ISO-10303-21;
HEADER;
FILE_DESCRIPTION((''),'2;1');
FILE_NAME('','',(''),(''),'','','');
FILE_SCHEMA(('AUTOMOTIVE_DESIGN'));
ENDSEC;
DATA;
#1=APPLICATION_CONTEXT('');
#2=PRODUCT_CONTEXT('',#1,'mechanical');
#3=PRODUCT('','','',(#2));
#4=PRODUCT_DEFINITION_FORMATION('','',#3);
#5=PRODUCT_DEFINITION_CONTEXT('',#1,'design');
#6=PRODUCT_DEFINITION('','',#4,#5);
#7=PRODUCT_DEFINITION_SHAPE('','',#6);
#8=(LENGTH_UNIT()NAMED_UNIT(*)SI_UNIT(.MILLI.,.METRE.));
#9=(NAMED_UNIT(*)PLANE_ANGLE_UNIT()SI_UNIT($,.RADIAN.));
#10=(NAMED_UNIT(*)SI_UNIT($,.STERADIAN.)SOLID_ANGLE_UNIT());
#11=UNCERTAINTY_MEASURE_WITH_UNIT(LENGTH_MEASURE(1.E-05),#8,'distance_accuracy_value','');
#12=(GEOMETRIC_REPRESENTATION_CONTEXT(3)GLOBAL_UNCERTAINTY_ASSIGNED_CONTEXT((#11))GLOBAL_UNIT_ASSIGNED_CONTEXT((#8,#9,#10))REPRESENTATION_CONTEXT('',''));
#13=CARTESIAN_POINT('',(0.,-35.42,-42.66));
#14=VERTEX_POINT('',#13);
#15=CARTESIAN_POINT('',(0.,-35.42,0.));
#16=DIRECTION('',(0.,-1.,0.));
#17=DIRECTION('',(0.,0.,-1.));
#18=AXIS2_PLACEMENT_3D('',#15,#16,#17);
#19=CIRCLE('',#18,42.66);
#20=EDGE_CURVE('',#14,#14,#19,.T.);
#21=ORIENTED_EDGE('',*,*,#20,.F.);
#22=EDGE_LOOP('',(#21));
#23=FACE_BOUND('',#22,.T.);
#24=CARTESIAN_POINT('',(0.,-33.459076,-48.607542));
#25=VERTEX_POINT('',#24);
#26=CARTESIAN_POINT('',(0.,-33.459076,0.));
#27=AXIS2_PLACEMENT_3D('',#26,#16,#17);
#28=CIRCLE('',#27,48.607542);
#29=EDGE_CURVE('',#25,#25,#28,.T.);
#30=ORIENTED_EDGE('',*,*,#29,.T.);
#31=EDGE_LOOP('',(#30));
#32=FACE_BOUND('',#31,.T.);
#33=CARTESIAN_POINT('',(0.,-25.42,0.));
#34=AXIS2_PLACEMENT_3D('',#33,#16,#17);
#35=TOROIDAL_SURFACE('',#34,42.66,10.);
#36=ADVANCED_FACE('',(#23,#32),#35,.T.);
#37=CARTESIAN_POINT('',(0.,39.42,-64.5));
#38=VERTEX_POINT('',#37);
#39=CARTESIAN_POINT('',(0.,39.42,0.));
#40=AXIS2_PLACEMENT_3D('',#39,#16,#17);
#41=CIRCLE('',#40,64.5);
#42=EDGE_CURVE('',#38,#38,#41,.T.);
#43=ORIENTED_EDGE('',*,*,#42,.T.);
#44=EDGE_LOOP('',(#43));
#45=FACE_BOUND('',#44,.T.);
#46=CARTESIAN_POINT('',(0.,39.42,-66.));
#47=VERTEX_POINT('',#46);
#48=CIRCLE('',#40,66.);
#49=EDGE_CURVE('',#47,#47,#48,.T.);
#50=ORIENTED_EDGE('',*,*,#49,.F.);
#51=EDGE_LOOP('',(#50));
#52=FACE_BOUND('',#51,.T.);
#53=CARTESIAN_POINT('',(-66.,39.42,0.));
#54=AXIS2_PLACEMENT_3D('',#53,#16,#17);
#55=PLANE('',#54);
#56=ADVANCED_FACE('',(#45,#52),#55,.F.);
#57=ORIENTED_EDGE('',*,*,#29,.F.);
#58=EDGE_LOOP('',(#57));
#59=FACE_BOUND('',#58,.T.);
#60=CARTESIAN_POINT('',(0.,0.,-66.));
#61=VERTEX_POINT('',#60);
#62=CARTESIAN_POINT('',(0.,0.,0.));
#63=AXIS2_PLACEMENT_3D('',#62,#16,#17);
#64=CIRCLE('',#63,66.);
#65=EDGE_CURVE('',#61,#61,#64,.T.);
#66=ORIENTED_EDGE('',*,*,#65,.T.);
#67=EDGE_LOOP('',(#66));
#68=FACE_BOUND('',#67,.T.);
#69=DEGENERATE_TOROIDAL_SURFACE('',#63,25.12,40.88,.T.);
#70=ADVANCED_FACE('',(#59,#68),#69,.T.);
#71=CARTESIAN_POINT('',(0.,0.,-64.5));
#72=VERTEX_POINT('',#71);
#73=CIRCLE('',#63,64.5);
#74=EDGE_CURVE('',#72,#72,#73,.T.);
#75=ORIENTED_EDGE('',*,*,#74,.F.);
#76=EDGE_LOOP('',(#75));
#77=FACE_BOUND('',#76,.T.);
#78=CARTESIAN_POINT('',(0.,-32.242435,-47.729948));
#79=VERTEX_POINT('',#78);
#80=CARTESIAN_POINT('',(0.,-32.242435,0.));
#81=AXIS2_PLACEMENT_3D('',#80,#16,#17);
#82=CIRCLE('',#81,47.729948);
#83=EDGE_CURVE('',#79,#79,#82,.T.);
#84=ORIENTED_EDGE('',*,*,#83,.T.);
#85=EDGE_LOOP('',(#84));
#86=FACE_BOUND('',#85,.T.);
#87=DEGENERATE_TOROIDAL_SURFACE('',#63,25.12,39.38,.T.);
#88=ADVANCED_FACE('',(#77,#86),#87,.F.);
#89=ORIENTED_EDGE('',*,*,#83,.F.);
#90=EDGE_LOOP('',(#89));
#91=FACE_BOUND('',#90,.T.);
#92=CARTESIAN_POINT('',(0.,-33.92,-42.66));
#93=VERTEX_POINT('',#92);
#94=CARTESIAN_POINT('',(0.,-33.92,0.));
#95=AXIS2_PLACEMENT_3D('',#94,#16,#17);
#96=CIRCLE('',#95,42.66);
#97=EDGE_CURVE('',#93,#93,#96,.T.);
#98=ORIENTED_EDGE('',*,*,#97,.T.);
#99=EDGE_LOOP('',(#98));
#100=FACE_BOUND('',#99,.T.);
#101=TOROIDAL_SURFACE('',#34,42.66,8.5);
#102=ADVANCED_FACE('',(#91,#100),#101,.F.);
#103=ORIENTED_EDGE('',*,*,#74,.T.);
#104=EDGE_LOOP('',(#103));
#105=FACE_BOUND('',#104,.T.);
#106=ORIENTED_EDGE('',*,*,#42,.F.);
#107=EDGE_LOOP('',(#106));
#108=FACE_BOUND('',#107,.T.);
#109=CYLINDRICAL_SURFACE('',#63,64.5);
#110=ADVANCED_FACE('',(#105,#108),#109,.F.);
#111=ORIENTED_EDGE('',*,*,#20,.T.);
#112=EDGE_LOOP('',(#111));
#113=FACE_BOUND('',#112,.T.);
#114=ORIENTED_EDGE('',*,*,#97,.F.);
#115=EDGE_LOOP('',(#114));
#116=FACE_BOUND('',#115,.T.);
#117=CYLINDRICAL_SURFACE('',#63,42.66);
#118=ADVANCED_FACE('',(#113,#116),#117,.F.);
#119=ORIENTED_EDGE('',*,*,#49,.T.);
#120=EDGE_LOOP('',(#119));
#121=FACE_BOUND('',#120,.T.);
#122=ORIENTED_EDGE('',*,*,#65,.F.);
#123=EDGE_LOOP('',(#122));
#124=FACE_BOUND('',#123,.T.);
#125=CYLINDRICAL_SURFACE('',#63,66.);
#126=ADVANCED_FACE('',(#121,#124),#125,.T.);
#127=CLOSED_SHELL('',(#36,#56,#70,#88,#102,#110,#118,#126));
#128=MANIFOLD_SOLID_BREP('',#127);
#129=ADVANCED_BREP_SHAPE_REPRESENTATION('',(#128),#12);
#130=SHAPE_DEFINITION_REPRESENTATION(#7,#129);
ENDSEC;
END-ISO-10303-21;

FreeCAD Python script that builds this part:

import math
import FreeCAD as App
import Part
import Sketcher
Q = App.Units.Quantity

doc = App.newDocument("Part")
body = doc.addObject("PartDesign::Body", "Body")

# Sketch on XY plane
sketch1 = body.newObject("Sketcher::SketchObject", "Sketch")
sketch1.AttachmentSupport = (doc.getObject("XY_Plane"), [""])
sketch1.MapMode = "FlatFace"
sketch1.addGeometry([
    Part.LineSegment(App.Vector(-64.5, 0, 0), App.Vector(-64.5, 39.42, 0)),  # 0
    Part.LineSegment(App.Vector(-64.5, 39.42, 0), App.Vector(-66, 39.42, 0)),  # 1
    Part.LineSegment(App.Vector(-66, 39.42, 0), App.Vector(-66, 0, 0)),  # 2
    Part.ArcOfCircle(Part.Circle(App.Vector(-25.12, 0, 0), App.Vector(0, 0, 1), 40.88), math.radians(180), math.radians(234.931981)),  # 3
    Part.ArcOfCircle(Part.Circle(App.Vector(-42.66, -25.42, 0), App.Vector(0, 0, 1), 10), math.radians(-126.495115), math.radians(-90)),  # 4
    Part.LineSegment(App.Vector(-42.66, -35.42, 0), App.Vector(-42.66, -33.92, 0)),  # 5
    Part.ArcOfCircle(Part.Circle(App.Vector(-42.66, -25.42, 0), App.Vector(0, 0, 1), 8.5), math.radians(-126.617104), math.radians(-90)),  # 6
    Part.ArcOfCircle(Part.Circle(App.Vector(-25.12, 0, 0), App.Vector(0, 0, 1), 39.38), math.radians(180), math.radians(234.960012)),  # 7
], False)
sketch1.addConstraint([
    Sketcher.Constraint("Coincident", 0, 2, 1, 1),
    Sketcher.Constraint("Coincident", 1, 2, 2, 1),
    Sketcher.Constraint("Tangent", 2, 2, 3, 1),
    Sketcher.Constraint("Coincident", 3, 2, 4, 1),
    Sketcher.Constraint("Coincident", 4, 2, 5, 1),
    Sketcher.Constraint("Coincident", 5, 2, 6, 2),
    Sketcher.Constraint("Coincident", 6, 1, 7, 2),
    Sketcher.Constraint("Tangent", 7, 1, 0, 1),
    Sketcher.Constraint("Vertical", 0),
    Sketcher.Constraint("Horizontal", 1),
    Sketcher.Constraint("Vertical", 2),
    Sketcher.Constraint("Vertical", 5),
    Sketcher.Constraint("Coincident", 6, 3, 4, 3),
    Sketcher.Constraint("Coincident", 7, 3, 3, 3),
    Sketcher.Constraint("PointOnObject", 3, 3, -1),
    Sketcher.Constraint("Vertical", 6, 3, 4, 2),
    Sketcher.Constraint("Equal", 1, 5),
    Sketcher.Constraint("Radius", 4, Q("10 mm")),
    Sketcher.Constraint("Radius", 6, Q("8.5 mm")),
    Sketcher.Constraint("Radius", 3, Q("40.88 mm")),
    Sketcher.Constraint("DistanceX", 1, 2, -1, 1, Q("66 mm")),
    Sketcher.Constraint("DistanceY", 0, 1, 0, 2, Q("39.42 mm")),
    Sketcher.Constraint("DistanceX", 4, 3, -1, 1, Q("42.66 mm")),
    Sketcher.Constraint("DistanceY", 4, 3, -1, 1, Q("25.42 mm")),
])
revolution = body.newObject("PartDesign::Revolution", "Revolution")
revolution.Profile = sketch1
revolution.ReferenceAxis = (sketch1, ["V_Axis"])
revolution.Angle = 360

doc.recompute()
